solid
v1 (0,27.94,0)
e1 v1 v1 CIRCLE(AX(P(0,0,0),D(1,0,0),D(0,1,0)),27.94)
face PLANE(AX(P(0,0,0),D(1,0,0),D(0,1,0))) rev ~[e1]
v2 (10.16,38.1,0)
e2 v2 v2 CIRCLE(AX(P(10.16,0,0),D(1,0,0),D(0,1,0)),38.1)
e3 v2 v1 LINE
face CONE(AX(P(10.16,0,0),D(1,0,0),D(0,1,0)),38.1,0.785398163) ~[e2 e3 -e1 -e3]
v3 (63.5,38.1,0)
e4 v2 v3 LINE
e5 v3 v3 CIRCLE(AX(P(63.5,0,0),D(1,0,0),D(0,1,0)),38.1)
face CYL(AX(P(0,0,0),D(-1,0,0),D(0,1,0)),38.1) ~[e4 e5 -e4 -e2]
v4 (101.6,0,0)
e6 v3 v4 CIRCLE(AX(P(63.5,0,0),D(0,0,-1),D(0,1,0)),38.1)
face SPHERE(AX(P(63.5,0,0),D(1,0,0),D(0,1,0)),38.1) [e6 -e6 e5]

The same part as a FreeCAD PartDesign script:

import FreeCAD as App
import Part
import Sketcher
Q = App.Units.Quantity


def edges_at(feature, points):
    """Names of the edges that pass closest to the given points."""
    edges = feature.Shape.Edges
    near = lambda p: min(range(len(edges)), key=lambda i: edges[i].distToShape(Part.Vertex(*p))[0])
    return sorted({f"Edge{near(p) + 1}" for p in points})

doc = App.newDocument("Part")
body = doc.addObject("PartDesign::Body", "Body")

# Sketch on YZ plane
sketch1 = doc.addObject("Sketcher::SketchObject", "Sketch")
body.addObject(sketch1)
sketch1.AttachmentSupport = (doc.YZ_Plane, [""])
sketch1.MapMode = "FlatFace"
sketch1.addGeometry(Part.Circle(App.Vector(0, 0, 0), App.Vector(0, 0, 1), 38.1), False)
sketch1.addConstraint([
    Sketcher.Constraint("Coincident", 0, 3, -1, 1),
    Sketcher.Constraint("Diameter", 0, Q("3 in")),
])
pad1 = doc.addObject("PartDesign::Pad", "Pad")
body.addObject(pad1)
pad1.Profile = sketch1
pad1.Length = Q("4 in")
doc.recompute()

fillet = doc.addObject("PartDesign::Fillet", "Fillet")
body.addObject(fillet)
fillet.Base = (pad1, edges_at(pad1, [(101.6, -38.1, 0)]))
fillet.Radius = Q("1.5 in")
doc.recompute()

chamfer = doc.addObject("PartDesign::Chamfer", "Chamfer")
body.addObject(chamfer)
chamfer.Base = (fillet, edges_at(fillet, [(0, -38.1, 0)]))
chamfer.Size = Q("0.4 in")

doc.recompute()
